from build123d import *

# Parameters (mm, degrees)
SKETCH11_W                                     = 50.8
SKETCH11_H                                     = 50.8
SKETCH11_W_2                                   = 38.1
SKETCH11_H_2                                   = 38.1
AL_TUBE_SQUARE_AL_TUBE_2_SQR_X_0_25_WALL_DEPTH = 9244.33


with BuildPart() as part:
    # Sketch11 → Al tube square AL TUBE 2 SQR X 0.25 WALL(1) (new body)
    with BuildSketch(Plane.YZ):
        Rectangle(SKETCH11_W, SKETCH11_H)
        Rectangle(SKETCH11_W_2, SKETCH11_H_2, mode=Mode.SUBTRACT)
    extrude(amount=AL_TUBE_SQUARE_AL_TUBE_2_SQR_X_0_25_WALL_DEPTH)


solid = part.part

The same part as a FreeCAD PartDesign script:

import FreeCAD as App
import Part
import Sketcher
from FreeCAD import Vector
Q = App.Units.Quantity

doc = App.newDocument("Part")
body = doc.addObject("PartDesign::Body", "Body")

sketch1 = body.newObject("Sketcher::SketchObject", "Sketch")
sketch1.AttachmentSupport = (doc.getObject("YZ_Plane"), [""])
sketch1.MapMode = "FlatFace"
sketch1.addGeometry([
    Part.LineSegment(Vector(-25.4, 25.4, 0), Vector(-25.4, -25.4, 0)),
    Part.LineSegment(Vector(-25.4, -25.4, 0), Vector(25.4, -25.4, 0)),
    Part.LineSegment(Vector(25.4, -25.4, 0), Vector(25.4, 25.4, 0)),
    Part.LineSegment(Vector(25.4, 25.4, 0), Vector(-25.4, 25.4, 0)),
    Part.LineSegment(Vector(19.05, -19.05, 0), Vector(-19.05, -19.05, 0)),
    Part.LineSegment(Vector(-19.05, -19.05, 0), Vector(-19.05, 19.05, 0)),
    Part.LineSegment(Vector(-19.05, 19.05, 0), Vector(19.05, 19.05, 0)),
    Part.LineSegment(Vector(19.05, 19.05, 0), Vector(19.05, -19.05, 0)),
], False)
sketch1.addConstraint([
    Sketcher.Constraint("Coincident", 0, 2, 1, 1),
    Sketcher.Constraint("Coincident", 1, 2, 2, 1),
    Sketcher.Constraint("Coincident", 2, 2, 3, 1),
    Sketcher.Constraint("Coincident", 3, 2, 0, 1),
    Sketcher.Constraint("Coincident", 4, 2, 5, 1),
    Sketcher.Constraint("Coincident", 5, 2, 6, 1),
    Sketcher.Constraint("Coincident", 6, 2, 7, 1),
    Sketcher.Constraint("Coincident", 7, 2, 4, 1),
    Sketcher.Constraint("Vertical", 0),
    Sketcher.Constraint("Horizontal", 1),
    Sketcher.Constraint("Vertical", 2),
    Sketcher.Constraint("Horizontal", 3),
    Sketcher.Constraint("Horizontal", 4),
    Sketcher.Constraint("Vertical", 5),
    Sketcher.Constraint("Horizontal", 6),
    Sketcher.Constraint("Vertical", 7),
    Sketcher.Constraint("Symmetric", 0, 2, 2, 2, -1, 1),
    Sketcher.Constraint("Symmetric", 4, 2, 6, 2, -1, 1),
    Sketcher.Constraint("Equal", 3, 0),
    Sketcher.Constraint("Equal", 6, 5),
    Sketcher.Constraint("DistanceX", 1, 1, 1, 2, Q("2 in")),
    Sketcher.Constraint("DistanceX", 4, 2, 4, 1, Q("1.5 in")),
])
pad1 = body.newObject("PartDesign::Pad", "Pad")
pad1.Profile = sketch1
pad1.Length = Q("363.95 in")

doc.recompute()
